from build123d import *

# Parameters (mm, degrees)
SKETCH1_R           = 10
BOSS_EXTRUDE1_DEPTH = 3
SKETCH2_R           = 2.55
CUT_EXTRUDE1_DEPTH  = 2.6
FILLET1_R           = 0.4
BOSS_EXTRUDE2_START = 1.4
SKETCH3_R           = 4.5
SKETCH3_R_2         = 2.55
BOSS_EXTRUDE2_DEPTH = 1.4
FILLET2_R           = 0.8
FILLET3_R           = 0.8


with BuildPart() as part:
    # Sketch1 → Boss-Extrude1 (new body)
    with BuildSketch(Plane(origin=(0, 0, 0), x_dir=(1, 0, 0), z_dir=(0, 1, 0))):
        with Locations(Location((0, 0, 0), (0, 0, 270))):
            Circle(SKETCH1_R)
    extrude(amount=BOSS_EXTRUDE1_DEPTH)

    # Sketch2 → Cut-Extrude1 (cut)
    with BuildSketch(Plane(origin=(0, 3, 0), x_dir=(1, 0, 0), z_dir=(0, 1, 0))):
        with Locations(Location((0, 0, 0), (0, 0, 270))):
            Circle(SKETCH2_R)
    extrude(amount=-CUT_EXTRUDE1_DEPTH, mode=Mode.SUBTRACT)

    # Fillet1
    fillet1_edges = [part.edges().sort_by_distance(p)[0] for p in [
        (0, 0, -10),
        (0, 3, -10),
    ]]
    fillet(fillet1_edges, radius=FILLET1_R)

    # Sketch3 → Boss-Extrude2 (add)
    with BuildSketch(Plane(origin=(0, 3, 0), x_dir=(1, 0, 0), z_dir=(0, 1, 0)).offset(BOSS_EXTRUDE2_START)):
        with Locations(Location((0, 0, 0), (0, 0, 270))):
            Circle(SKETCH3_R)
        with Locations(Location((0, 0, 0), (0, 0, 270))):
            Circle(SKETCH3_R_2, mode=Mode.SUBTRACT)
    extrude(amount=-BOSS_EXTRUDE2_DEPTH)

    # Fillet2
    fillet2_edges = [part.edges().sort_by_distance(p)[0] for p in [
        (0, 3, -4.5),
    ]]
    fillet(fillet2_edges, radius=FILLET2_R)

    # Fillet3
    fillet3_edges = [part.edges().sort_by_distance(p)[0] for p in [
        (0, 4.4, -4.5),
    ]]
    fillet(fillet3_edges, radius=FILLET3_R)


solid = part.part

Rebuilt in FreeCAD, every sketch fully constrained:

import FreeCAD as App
import Part
import Sketcher


def edges_at(feature, points):
    """Names of the edges that pass closest to the given points."""
    edges = feature.Shape.Edges
    near = lambda p: min(range(len(edges)), key=lambda i: edges[i].distToShape(Part.Vertex(*p))[0])
    return sorted({f"Edge{near(p) + 1}" for p in points})

doc = App.newDocument("Part")
body = doc.addObject("PartDesign::Body", "Body")

# Sketch on XZ plane
sketch1 = body.newObject("Sketcher::SketchObject", "Sketch")
sketch1.AttachmentSupport = (doc.getObject("XZ_Plane"), [""])
sketch1.MapMode = "FlatFace"
sketch1.addGeometry(Part.Circle(App.Vector(0, 0, 0), App.Vector(0, 0, 1), 10), False)
sketch1.addConstraint([
    Sketcher.Constraint("Coincident", 0, 3, -1, 1),
    Sketcher.Constraint("Diameter", 0, 20.0),
])
pad1 = body.newObject("PartDesign::Pad", "Pad")
pad1.Profile = sketch1
pad1.Length = 3
pad1.Reversed = True

# Sketch on XZ plane
sketch2 = body.newObject("Sketcher::SketchObject", "Sketch001")
sketch2.AttachmentSupport = (doc.getObject("XZ_Plane"), [""])
sketch2.MapMode = "FlatFace"
sketch2.AttachmentOffset = App.Placement(App.Vector(0, 0, -3), App.Rotation())
sketch2.addGeometry(Part.Circle(App.Vector(0, 0, 0), App.Vector(0, 0, 1), 2.5), False)
sketch2.addConstraint([
    Sketcher.Constraint("Coincident", 0, 3, -1, 1),
    Sketcher.Constraint("Diameter", 0, 5.1),
])
pocket1 = body.newObject("PartDesign::Pocket", "Pocket")
pocket1.Profile = sketch2
pocket1.Length = 2.6
pocket1.Reversed = True
doc.recompute()

fillet = body.newObject("PartDesign::Fillet", "Fillet")
fillet.Base = (pocket1, edges_at(pocket1, [(0, 0, -10), (0, 3, -10)]))
fillet.Radius = 0.4

# Sketch on XZ plane
sketch3 = body.newObject("Sketcher::SketchObject", "Sketch002")
sketch3.AttachmentSupport = (doc.getObject("XZ_Plane"), [""])
sketch3.MapMode = "FlatFace"
sketch3.AttachmentOffset = App.Placement(App.Vector(0, 0, -4.4), App.Rotation())
sketch3.addGeometry([
    Part.Circle(App.Vector(0, 0, 0), App.Vector(0, 0, 1), 4.5),
    Part.Circle(App.Vector(0, 0, 0), App.Vector(0, 0, 1), 2.5),
], False)
sketch3.addConstraint([
    Sketcher.Constraint("Coincident", 0, 3, -1, 1),
    Sketcher.Constraint("Coincident", 1, 3, -1, 1),
    Sketcher.Constraint("Diameter", 0, 9.0),
    Sketcher.Constraint("Diameter", 1, 5.1),
])
pad2 = body.newObject("PartDesign::Pad", "Pad001")
pad2.Profile = sketch3
pad2.Length = 1.4
doc.recompute()

fillet2 = body.newObject("PartDesign::Fillet", "Fillet001")
fillet2.Base = (pad2, edges_at(pad2, [(0, 3, -4.5)]))
fillet2.Radius = 0.8
doc.recompute()

fillet3 = body.newObject("PartDesign::Fillet", "Fillet002")
fillet3.Base = (fillet2, edges_at(fillet2, [(0, 4.4, -4.5)]))
fillet3.Radius = 0.8

doc.recompute()
